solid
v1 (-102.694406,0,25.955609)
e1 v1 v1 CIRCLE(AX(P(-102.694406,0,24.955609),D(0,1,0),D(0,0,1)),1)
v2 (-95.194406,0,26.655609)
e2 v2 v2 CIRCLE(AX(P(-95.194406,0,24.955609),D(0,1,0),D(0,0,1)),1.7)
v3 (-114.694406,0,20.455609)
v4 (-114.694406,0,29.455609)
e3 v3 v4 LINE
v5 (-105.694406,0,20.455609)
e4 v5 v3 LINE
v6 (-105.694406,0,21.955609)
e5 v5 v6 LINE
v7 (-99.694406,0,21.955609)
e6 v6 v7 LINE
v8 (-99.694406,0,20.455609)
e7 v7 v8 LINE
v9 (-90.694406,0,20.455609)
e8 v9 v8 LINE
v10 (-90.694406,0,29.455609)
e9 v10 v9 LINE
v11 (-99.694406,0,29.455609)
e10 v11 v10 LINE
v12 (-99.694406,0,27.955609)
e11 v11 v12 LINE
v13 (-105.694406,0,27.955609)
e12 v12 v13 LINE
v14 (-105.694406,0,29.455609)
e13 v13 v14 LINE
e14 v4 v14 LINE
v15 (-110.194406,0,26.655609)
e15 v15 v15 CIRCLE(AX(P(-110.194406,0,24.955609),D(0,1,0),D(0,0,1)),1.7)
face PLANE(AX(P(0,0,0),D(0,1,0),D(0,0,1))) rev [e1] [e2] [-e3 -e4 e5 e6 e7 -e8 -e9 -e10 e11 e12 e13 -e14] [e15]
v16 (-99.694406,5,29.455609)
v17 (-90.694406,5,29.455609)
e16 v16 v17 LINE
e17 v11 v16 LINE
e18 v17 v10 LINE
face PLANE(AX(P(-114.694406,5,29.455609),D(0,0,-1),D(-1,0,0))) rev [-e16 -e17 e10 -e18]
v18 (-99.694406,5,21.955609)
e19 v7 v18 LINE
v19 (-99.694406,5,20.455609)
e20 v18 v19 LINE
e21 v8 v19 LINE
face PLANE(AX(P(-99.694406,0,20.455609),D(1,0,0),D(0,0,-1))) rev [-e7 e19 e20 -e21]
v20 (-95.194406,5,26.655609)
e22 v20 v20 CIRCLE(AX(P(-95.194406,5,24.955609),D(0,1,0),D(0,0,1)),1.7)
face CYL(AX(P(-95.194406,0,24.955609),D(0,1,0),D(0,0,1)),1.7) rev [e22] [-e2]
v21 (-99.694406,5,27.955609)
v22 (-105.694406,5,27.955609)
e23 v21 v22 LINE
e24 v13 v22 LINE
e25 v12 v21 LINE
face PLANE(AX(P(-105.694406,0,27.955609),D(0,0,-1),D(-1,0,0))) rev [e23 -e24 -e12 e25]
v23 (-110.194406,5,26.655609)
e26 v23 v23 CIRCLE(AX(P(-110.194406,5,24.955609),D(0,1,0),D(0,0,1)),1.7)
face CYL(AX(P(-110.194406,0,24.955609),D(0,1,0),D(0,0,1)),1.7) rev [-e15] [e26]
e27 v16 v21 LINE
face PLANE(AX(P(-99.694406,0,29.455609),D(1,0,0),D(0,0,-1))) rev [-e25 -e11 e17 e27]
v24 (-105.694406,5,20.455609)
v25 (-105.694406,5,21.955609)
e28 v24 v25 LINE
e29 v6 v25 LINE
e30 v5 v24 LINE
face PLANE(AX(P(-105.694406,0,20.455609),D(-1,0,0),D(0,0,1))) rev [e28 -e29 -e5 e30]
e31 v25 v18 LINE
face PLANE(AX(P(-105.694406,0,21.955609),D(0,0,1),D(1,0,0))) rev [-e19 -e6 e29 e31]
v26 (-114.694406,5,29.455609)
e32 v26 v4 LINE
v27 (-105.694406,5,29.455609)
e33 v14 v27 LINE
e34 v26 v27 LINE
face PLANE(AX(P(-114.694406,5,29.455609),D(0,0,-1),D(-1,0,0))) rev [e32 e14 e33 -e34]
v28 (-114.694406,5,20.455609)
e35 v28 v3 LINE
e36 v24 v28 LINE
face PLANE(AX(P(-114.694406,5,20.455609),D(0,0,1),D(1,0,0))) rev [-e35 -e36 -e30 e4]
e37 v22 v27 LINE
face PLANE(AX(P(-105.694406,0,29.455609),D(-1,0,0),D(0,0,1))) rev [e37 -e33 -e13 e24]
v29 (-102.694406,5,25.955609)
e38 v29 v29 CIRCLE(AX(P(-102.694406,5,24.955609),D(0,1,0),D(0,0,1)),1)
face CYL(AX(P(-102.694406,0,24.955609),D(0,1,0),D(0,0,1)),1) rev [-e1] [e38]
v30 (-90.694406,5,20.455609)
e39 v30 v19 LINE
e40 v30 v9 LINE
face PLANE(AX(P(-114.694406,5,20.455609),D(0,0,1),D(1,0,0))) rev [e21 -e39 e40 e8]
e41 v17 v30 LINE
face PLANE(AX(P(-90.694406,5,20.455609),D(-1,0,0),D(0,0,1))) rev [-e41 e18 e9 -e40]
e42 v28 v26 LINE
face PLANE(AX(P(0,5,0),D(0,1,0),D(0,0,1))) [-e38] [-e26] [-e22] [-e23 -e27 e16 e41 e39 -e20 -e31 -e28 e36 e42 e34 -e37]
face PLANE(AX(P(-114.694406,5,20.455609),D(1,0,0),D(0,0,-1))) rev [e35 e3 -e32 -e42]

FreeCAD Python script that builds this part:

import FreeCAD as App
import Part
import Sketcher

V = App.Vector


def add_polygon(sketch, points):
    """Adds a closed chain of lines whose ends are joined by coincident constraints."""
    first, n = sketch.GeometryCount, len(points)
    for a, b in zip(points, points[1:] + points[:1]):
        sketch.addGeometry(Part.LineSegment(App.Vector(*a, 0), App.Vector(*b, 0)), False)
    for i in range(n):
        sketch.addConstraint(Sketcher.Constraint("Coincident", first + i, 2, first + (i + 1) % n, 1))

doc = App.newDocument("Part")
body = doc.addObject("PartDesign::Body", "Body")

# Sketch on XZ plane
sketch1 = doc.addObject("Sketcher::SketchObject", "Sketch")
body.addObject(sketch1)
sketch1.AttachmentSupport = (doc.XZ_Plane, [""])
sketch1.MapMode = "FlatFace"
add_polygon(sketch1, [(-114.694406, 20.455609), (-114.694406, 29.455609), (-90.694406, 29.455609), (-90.694406, 20.455609)])  # lines 0-3
sketch1.addConstraint(Sketcher.Constraint("Vertical", 0))
sketch1.addConstraint(Sketcher.Constraint("Horizontal", 1))
sketch1.addConstraint(Sketcher.Constraint("Vertical", 2))
sketch1.addConstraint(Sketcher.Constraint("Horizontal", 3))
sketch1.addConstraint(Sketcher.Constraint("DistanceX", 1, 1, 1, 2, 24.0))
sketch1.addConstraint(Sketcher.Constraint("DistanceY", 0, 1, 0, 2, 9.0))
sketch1.addConstraint(Sketcher.Constraint("DistanceY", -1, 1, 0, 2, 29.455609))
sketch1.addConstraint(Sketcher.Constraint("DistanceX", 0, 2, -1, 1, 114.694406))
pad1 = doc.addObject("PartDesign::Pad", "Pad")
body.addObject(pad1)
pad1.Profile = sketch1
pad1.Length = 5
pad1.Reversed = True

# Sketch on XZ plane
sketch2 = doc.addObject("Sketcher::SketchObject", "Sketch001")
body.addObject(sketch2)
sketch2.AttachmentSupport = (doc.XZ_Plane, [""])
sketch2.MapMode = "FlatFace"
sketch2.AttachmentOffset = App.Placement(V(0, 0, -5), App.Rotation())
sketch2.addGeometry(Part.Circle(V(-110.194406, 24.955609, 0), V(0, 0, 1), 1.7), False)  # 0
sketch2.addGeometry(Part.Circle(V(-95.194406, 24.955609, 0), V(0, 0, 1), 1.7), False)  # 1
sketch2.addGeometry(Part.Circle(V(-102.694406, 24.955609, 0), V(0, 0, 1), 1), False)  # 2
add_polygon(sketch2, [(-105.694406, 27.955609), (-105.694406, 29.455609), (-99.694406, 29.455609), (-99.694406, 27.955609)])  # lines 3-6
add_polygon(sketch2, [(-105.694406, 20.455609), (-105.694406, 21.955609), (-99.694406, 21.955609), (-99.694406, 20.455609)])  # lines 7-10
sketch2.addConstraint(Sketcher.Constraint("Vertical", 3))
sketch2.addConstraint(Sketcher.Constraint("Horizontal", 4))
sketch2.addConstraint(Sketcher.Constraint("Vertical", 5))
sketch2.addConstraint(Sketcher.Constraint("Horizontal", 6))
sketch2.addConstraint(Sketcher.Constraint("Vertical", 7))
sketch2.addConstraint(Sketcher.Constraint("Horizontal", 8))
sketch2.addConstraint(Sketcher.Constraint("Vertical", 9))
sketch2.addConstraint(Sketcher.Constraint("Horizontal", 10))
sketch2.addConstraint(Sketcher.Constraint("Equal", 0, 1))
sketch2.addConstraint(Sketcher.Constraint("Horizontal", 0, 3, 1, 3))
sketch2.addConstraint(Sketcher.Constraint("Horizontal", 1, 3, 2, 3))
sketch2.addConstraint(Sketcher.Constraint("Vertical", 6, 2, 7, 2))
sketch2.addConstraint(Sketcher.Constraint("Vertical", 5, 2, 8, 2))
sketch2.addConstraint(Sketcher.Constraint("Equal", 5, 7))
sketch2.addConstraint(Sketcher.Constraint("Diameter", 2, 2.0))
sketch2.addConstraint(Sketcher.Constraint("Diameter", 0, 3.4))
sketch2.addConstraint(Sketcher.Constraint("DistanceX", 4, 1, 4, 2, 6.0))
sketch2.addConstraint(Sketcher.Constraint("DistanceY", 3, 1, 3, 2, 1.5))
sketch2.addConstraint(Sketcher.Constraint("DistanceX", 0, 3, 1, 3, 15.0))
sketch2.addConstraint(Sketcher.Constraint("DistanceX", 3, 2, 2, 3, 3.0))
sketch2.addConstraint(Sketcher.Constraint("DistanceY", 2, 3, 5, 2, 3.0))
sketch2.addConstraint(Sketcher.Constraint("DistanceY", 7, 2, 2, 3, 3.0))
sketch2.addConstraint(Sketcher.Constraint("DistanceX", 0, 3, 2, 3, 7.5))
sketch2.addConstraint(Sketcher.Constraint("DistanceY", -1, 1, 0, 3, 24.955609))
sketch2.addConstraint(Sketcher.Constraint("DistanceX", 0, 3, -1, 1, 110.194406))
pocket1 = doc.addObject("PartDesign::Pocket", "Pocket")
body.addObject(pocket1)
pocket1.Profile = sketch2
pocket1.Length = 5
pocket1.Reversed = True

doc.recompute()
